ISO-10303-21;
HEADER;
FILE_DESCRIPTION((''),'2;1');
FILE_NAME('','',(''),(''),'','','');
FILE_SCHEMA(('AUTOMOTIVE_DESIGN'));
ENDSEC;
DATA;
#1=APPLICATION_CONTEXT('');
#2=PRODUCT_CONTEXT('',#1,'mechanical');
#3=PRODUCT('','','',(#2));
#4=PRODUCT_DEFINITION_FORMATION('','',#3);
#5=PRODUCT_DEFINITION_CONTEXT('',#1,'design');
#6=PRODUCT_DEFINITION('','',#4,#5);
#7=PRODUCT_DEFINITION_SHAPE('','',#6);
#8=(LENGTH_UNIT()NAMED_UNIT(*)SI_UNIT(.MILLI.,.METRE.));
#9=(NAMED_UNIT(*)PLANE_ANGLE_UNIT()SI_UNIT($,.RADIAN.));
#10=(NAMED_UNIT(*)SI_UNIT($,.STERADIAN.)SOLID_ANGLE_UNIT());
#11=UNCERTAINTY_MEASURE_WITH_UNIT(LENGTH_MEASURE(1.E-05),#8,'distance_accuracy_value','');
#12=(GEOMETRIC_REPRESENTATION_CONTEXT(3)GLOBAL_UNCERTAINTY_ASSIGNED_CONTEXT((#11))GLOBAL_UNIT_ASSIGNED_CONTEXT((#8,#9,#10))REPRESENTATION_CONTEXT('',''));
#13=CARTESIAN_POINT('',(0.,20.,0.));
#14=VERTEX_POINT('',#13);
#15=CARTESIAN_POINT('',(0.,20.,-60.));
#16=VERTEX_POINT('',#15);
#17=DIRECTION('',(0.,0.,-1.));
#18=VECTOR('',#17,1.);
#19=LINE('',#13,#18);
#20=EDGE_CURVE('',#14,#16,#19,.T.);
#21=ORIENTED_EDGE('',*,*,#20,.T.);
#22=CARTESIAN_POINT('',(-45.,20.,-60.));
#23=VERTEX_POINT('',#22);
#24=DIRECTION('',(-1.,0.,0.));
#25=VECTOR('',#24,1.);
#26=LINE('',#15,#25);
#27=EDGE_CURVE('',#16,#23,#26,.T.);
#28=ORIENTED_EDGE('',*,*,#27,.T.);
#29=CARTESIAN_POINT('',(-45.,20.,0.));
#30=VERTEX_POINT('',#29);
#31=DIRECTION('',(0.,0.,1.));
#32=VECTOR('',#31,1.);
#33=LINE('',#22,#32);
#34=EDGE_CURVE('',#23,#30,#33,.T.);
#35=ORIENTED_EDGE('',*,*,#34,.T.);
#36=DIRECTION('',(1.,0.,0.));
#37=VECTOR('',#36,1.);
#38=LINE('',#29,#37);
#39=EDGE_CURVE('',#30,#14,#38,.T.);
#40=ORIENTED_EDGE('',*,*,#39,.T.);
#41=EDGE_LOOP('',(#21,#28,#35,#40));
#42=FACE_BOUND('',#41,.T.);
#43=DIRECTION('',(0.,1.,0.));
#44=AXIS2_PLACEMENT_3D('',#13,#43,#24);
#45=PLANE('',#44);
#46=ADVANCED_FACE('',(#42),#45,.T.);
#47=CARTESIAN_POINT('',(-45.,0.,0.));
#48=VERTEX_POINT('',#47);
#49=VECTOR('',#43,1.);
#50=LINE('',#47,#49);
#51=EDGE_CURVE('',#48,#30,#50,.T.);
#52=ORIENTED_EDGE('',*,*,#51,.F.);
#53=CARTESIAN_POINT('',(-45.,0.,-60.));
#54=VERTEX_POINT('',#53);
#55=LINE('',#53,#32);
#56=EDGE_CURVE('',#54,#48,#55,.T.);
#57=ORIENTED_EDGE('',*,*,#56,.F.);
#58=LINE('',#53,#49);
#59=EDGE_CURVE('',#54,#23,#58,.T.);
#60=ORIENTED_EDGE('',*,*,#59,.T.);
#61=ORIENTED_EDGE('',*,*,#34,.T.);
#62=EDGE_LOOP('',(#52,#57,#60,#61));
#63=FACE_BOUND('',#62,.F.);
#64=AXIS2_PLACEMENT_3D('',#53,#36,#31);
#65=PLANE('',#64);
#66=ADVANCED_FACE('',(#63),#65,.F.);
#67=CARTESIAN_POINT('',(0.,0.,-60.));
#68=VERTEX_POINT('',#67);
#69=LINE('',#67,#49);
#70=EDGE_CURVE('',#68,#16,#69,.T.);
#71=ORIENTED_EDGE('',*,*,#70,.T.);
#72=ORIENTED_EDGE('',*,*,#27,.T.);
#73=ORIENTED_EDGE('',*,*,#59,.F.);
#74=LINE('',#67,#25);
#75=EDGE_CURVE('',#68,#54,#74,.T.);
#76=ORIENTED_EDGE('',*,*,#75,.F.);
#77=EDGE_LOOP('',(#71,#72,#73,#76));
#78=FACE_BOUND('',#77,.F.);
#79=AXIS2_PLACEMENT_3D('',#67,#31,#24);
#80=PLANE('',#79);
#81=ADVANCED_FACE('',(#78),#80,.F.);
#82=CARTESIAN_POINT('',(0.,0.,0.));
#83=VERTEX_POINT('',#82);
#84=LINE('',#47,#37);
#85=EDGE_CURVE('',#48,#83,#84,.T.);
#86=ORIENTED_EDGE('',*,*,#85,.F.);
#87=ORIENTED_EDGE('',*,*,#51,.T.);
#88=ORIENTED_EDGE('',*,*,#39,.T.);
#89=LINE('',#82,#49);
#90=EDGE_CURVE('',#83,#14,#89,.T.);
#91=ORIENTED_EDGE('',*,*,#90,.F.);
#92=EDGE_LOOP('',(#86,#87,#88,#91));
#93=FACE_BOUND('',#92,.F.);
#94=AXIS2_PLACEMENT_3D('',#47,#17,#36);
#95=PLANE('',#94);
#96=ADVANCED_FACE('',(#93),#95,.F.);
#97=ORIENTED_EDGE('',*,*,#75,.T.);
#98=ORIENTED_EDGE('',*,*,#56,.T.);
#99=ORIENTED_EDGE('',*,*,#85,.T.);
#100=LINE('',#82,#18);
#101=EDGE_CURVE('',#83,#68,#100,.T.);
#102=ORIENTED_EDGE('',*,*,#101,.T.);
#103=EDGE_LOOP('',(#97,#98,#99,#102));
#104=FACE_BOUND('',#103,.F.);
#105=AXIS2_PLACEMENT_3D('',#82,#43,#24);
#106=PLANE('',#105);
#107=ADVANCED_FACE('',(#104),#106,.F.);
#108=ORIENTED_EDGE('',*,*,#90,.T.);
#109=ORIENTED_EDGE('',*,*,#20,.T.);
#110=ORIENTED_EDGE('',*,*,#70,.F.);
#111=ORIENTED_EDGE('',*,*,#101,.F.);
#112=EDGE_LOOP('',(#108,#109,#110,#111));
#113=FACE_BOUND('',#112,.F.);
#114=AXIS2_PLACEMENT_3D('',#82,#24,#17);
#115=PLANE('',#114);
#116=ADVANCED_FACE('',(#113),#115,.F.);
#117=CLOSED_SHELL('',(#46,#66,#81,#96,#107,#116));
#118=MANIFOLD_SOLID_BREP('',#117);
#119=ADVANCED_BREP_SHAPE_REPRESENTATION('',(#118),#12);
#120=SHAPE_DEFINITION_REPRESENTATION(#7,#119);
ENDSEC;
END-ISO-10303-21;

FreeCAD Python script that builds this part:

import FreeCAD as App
import Part
import Sketcher

V = App.Vector
Q = App.Units.Quantity

doc = App.newDocument("Part")
body = doc.addObject("PartDesign::Body", "Body")

# Sketch on XZ plane
sketch1 = body.newObject("Sketcher::SketchObject", "Sketch")
sketch1.AttachmentSupport = (doc.getObject("XZ_Plane"), [""])
sketch1.MapMode = "FlatFace"
sketch1.addGeometry([
    Part.LineSegment(V(-45, -60, 0), V(-45, 0, 0)),
    Part.LineSegment(V(-45, 0, 0), V(0, 0, 0)),
    Part.LineSegment(V(0, 0, 0), V(0, -60, 0)),
    Part.LineSegment(V(0, -60, 0), V(-45, -60, 0)),
], False)
sketch1.addConstraint([
    Sketcher.Constraint("Coincident", 0, 2, 1, 1),
    Sketcher.Constraint("Coincident", 1, 2, 2, 1),
    Sketcher.Constraint("Coincident", 2, 2, 3, 1),
    Sketcher.Constraint("Coincident", 3, 2, 0, 1),
    Sketcher.Constraint("Vertical", 0),
    Sketcher.Constraint("Horizontal", 1),
    Sketcher.Constraint("Vertical", 2),
    Sketcher.Constraint("Horizontal", 3),
    Sketcher.Constraint("Coincident", 1, 2, -1, 1),
    Sketcher.Constraint("DistanceX", 1, 1, 1, 2, Q("45 mm")),
    Sketcher.Constraint("DistanceY", 0, 1, 0, 2, Q("60 mm")),
])
pad1 = body.newObject("PartDesign::Pad", "Pad")
pad1.Profile = sketch1
pad1.Length = 20
pad1.Reversed = True

doc.recompute()
